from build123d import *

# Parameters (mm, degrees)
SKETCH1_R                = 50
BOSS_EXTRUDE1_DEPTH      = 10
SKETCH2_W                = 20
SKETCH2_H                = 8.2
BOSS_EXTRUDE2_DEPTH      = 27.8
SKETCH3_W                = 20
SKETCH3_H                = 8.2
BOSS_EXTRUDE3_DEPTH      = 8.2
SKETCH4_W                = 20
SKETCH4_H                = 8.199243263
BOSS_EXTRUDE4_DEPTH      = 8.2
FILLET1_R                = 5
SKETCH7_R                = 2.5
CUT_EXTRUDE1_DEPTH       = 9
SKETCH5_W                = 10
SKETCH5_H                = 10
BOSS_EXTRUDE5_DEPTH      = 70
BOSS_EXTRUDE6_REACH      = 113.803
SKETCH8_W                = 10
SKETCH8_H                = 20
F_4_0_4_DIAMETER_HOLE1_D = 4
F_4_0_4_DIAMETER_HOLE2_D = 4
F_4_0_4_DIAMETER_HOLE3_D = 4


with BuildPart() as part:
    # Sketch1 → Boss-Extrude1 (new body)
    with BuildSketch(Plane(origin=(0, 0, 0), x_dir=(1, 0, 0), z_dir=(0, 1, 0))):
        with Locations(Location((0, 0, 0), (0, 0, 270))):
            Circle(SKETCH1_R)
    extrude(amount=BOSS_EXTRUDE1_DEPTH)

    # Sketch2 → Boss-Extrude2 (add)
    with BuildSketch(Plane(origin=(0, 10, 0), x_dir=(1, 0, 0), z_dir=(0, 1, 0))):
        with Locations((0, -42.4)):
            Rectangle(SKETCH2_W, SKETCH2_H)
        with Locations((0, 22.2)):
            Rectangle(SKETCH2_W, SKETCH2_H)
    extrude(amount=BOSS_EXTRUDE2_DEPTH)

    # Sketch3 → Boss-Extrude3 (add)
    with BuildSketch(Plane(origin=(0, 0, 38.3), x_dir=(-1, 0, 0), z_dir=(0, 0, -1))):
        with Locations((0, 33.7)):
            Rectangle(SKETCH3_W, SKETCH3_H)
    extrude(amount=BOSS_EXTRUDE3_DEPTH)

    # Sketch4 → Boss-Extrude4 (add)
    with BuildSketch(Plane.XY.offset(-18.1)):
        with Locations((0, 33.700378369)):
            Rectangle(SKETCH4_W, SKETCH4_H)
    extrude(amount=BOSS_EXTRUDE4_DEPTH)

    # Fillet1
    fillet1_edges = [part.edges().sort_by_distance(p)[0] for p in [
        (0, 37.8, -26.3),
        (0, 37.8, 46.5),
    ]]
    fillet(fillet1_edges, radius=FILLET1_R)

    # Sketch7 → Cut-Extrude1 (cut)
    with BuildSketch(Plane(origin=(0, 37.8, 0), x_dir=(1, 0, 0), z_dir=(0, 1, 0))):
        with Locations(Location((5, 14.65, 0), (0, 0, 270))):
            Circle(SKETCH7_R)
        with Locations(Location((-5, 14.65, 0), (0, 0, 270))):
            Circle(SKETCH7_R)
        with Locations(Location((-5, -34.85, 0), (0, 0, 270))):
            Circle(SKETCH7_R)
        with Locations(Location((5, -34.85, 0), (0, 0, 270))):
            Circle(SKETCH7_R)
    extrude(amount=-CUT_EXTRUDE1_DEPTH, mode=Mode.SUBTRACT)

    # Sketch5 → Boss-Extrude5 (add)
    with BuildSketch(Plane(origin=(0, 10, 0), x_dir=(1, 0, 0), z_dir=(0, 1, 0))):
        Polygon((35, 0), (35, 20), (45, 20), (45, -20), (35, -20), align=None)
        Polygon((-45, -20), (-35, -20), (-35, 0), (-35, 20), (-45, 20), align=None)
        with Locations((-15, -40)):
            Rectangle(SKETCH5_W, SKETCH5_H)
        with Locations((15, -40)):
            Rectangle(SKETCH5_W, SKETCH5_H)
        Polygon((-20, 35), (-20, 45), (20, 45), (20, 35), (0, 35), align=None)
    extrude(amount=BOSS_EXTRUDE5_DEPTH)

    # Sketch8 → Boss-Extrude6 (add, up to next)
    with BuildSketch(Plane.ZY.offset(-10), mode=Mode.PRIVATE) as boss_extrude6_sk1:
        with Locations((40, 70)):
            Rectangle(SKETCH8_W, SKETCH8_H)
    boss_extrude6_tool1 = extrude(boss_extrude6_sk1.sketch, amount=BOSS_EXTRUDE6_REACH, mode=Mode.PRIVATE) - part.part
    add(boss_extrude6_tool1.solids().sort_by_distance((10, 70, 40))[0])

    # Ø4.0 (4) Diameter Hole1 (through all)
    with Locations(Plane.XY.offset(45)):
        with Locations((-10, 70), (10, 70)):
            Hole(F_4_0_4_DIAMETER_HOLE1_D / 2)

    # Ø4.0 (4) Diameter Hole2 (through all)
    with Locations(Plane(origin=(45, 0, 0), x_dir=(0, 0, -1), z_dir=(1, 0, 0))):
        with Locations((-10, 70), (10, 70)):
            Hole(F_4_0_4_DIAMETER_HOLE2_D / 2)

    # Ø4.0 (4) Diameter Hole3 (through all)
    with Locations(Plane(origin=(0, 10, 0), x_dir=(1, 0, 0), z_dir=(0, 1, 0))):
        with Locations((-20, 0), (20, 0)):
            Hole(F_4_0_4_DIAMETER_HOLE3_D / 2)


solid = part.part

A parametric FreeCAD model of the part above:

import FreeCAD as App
import Part
import Sketcher
from FreeCAD import Vector
Q = App.Units.Quantity


def edges_at(feature, points):
    """Names of the edges that pass closest to the given points."""
    edges = feature.Shape.Edges
    near = lambda p: min(range(len(edges)), key=lambda i: edges[i].distToShape(Part.Vertex(*p))[0])
    return sorted({f"Edge{near(p) + 1}" for p in points})

doc = App.newDocument("Part")
params = doc.addObject("Spreadsheet::Sheet", "Params")
for row, (alias, value) in enumerate([
    ("sketch1_diameter", "100 mm"),
    ("pad1_length", "10 mm"),
    ("sketch2_width", "20 mm"),
    ("sketch2_height", "8.2 mm"),
    ("pad2_length", "27.8 mm"),
    ("sketch3_width", "20 mm"),
    ("sketch3_height", "8.2 mm"),
    ("pad3_length", "8.2 mm"),
    ("sketch4_width", "20 mm"),
    ("pad4_length", "8.2 mm"),
    ("fillet_radius", "5 mm"),
    ("sketch5_diameter", "5 mm"),
    ("pocket1_length", "9 mm"),
    ("sketch6_width", "10 mm"),
    ("sketch6_width2", "40 mm"),
    ("pad5_length", "70 mm"),
    ("sketch7_width", "20 mm"),
    ("sketch7_height", "10 mm"),
    ("sketch8_diameter", "4 mm"),
    ("hole_diameter", "4 mm"),
    ("sketch9_diameter", "4 mm"),
    ("hole2_diameter", "4 mm"),
    ("sketch10_diameter", "4 mm"),
    ("hole3_diameter", "4 mm"),
], start=1):
    params.set(f"A{row}", alias)
    params.set(f"B{row}", "=" + value)
    params.setAlias(f"B{row}", alias)

body = doc.addObject("PartDesign::Body", "Body")

# Sketch on XZ plane
sketch1 = body.newObject("Sketcher::SketchObject", "Sketch")
sketch1.AttachmentSupport = (doc.getObject("XZ_Plane"), [""])
sketch1.MapMode = "FlatFace"
sketch1.addGeometry(Part.Circle(Vector(0, 0, 0), Vector(0, 0, 1), 50), False)
sketch1.addConstraint([
    Sketcher.Constraint("Coincident", 0, 3, -1, 1),
    Sketcher.Constraint("Diameter", 0, Q("100 mm")),
])
sketch1.setExpression("Constraints[1]", "Params.sketch1_diameter")
pad1 = body.newObject("PartDesign::Pad", "Pad")
pad1.Profile = sketch1
pad1.setExpression("Length", "Params.pad1_length")
pad1.Reversed = True

# Sketch on XZ plane
sketch2 = body.newObject("Sketcher::SketchObject", "Sketch001")
sketch2.AttachmentSupport = (doc.getObject("XZ_Plane"), [""])
sketch2.MapMode = "FlatFace"
sketch2.AttachmentOffset = App.Placement(Vector(0, 0, -10), App.Rotation())
sketch2.addGeometry([
    Part.LineSegment(Vector(-10, 38, 0), Vector(-10, 46, 0)),  # 0
    Part.LineSegment(Vector(-10, 46, 0), Vector(10, 46, 0)),  # 1
    Part.LineSegment(Vector(10, 46, 0), Vector(10, 38, 0)),  # 2
    Part.LineSegment(Vector(10, 38, 0), Vector(-10, 38, 0)),  # 3
    Part.LineSegment(Vector(-10, -26, 0), Vector(-10, -18, 0)),  # 4
    Part.LineSegment(Vector(-10, -18, 0), Vector(10, -18, 0)),  # 5
    Part.LineSegment(Vector(10, -18, 0), Vector(10, -26, 0)),  # 6
    Part.LineSegment(Vector(10, -26, 0), Vector(-10, -26, 0)),  # 7
], False)
sketch2.addConstraint([
    Sketcher.Constraint("Coincident", 0, 2, 1, 1),
    Sketcher.Constraint("Coincident", 1, 2, 2, 1),
    Sketcher.Constraint("Coincident", 2, 2, 3, 1),
    Sketcher.Constraint("Coincident", 3, 2, 0, 1),
    Sketcher.Constraint("Coincident", 4, 2, 5, 1),
    Sketcher.Constraint("Coincident", 5, 2, 6, 1),
    Sketcher.Constraint("Coincident", 6, 2, 7, 1),
    Sketcher.Constraint("Coincident", 7, 2, 4, 1),
    Sketcher.Constraint("Vertical", 0),
    Sketcher.Constraint("Horizontal", 1),
    Sketcher.Constraint("Vertical", 2),
    Sketcher.Constraint("Horizontal", 3),
    Sketcher.Constraint("Vertical", 4),
    Sketcher.Constraint("Horizontal", 5),
    Sketcher.Constraint("Vertical", 6),
    Sketcher.Constraint("Horizontal", 7),
    Sketcher.Constraint("Vertical", 3, 2, 4, 2),
    Sketcher.Constraint("Vertical", 2, 2, 5, 2),
    Sketcher.Constraint("Equal", 2, 4),
    Sketcher.Constraint("DistanceX", 1, 1, 1, 2, Q("20 mm")),
    Sketcher.Constraint("DistanceY", 0, 1, 0, 2, Q("8.2 mm")),
    Sketcher.Constraint("DistanceX", 0, 2, -1, 1, Q("10 mm")),
    Sketcher.Constraint("DistanceY", -1, 1, 0, 2, Q("46.5 mm")),
    Sketcher.Constraint("DistanceY", 4, 2, -1, 1, Q("18.1 mm")),
])
sketch2.setExpression("Constraints[19]", "Params.sketch2_width")
sketch2.setExpression("Constraints[20]", "Params.sketch2_height")
pad2 = body.newObject("PartDesign::Pad", "Pad001")
pad2.Profile = sketch2
pad2.setExpression("Length", "Params.pad2_length")
pad2.Reversed = True

# Sketch on XY plane
sketch3 = body.newObject("Sketcher::SketchObject", "Sketch002")
sketch3.AttachmentSupport = (doc.getObject("XY_Plane"), [""])
sketch3.MapMode = "FlatFace"
sketch3.AttachmentOffset = App.Placement(Vector(0, 0, 38.3), App.Rotation())
sketch3.addGeometry([
    Part.LineSegment(Vector(10, 38, 0), Vector(10, 30, 0)),
    Part.LineSegment(Vector(10, 30, 0), Vector(-10, 30, 0)),
    Part.LineSegment(Vector(-10, 30, 0), Vector(-10, 38, 0)),
    Part.LineSegment(Vector(-10, 38, 0), Vector(10, 38, 0)),
], False)
sketch3.addConstraint([
    Sketcher.Constraint("Coincident", 0, 2, 1, 1),
    Sketcher.Constraint("Coincident", 1, 2, 2, 1),
    Sketcher.Constraint("Coincident", 2, 2, 3, 1),
    Sketcher.Constraint("Coincident", 3, 2, 0, 1),
    Sketcher.Constraint("Vertical", 0),
    Sketcher.Constraint("Horizontal", 1),
    Sketcher.Constraint("Vertical", 2),
    Sketcher.Constraint("Horizontal", 3),
    Sketcher.Constraint("DistanceX", 1, 2, 1, 1, Q("20 mm")),
    Sketcher.Constraint("DistanceY", 0, 2, 0, 1, Q("8.2 mm")),
    Sketcher.Constraint("DistanceX", -1, 1, 0, 2, Q("10 mm")),
    Sketcher.Constraint("DistanceY", -1, 1, 0, 2, Q("29.6 mm")),
])
sketch3.setExpression("Constraints[8]", "Params.sketch3_width")
sketch3.setExpression("Constraints[9]", "Params.sketch3_height")
pad3 = body.newObject("PartDesign::Pad", "Pad002")
pad3.Profile = sketch3
pad3.setExpression("Length", "Params.pad3_length")
pad3.Reversed = True

# Sketch on XY plane
sketch4 = body.newObject("Sketcher::SketchObject", "Sketch003")
sketch4.AttachmentSupport = (doc.getObject("XY_Plane"), [""])
sketch4.MapMode = "FlatFace"
sketch4.AttachmentOffset = App.Placement(Vector(0, 0, -18.1), App.Rotation())
sketch4.addGeometry([
    Part.LineSegment(Vector(-10, 38, 0), Vector(-10, 30, 0)),
    Part.LineSegment(Vector(-10, 30, 0), Vector(10, 30, 0)),
    Part.LineSegment(Vector(10, 30, 0), Vector(10, 38, 0)),
    Part.LineSegment(Vector(10, 38, 0), Vector(-10, 38, 0)),
], False)
sketch4.addConstraint([
    Sketcher.Constraint("Coincident", 0, 2, 1, 1),
    Sketcher.Constraint("Coincident", 1, 2, 2, 1),
    Sketcher.Constraint("Coincident", 2, 2, 3, 1),
    Sketcher.Constraint("Coincident", 3, 2, 0, 1),
    Sketcher.Constraint("Vertical", 0),
    Sketcher.Constraint("Horizontal", 1),
    Sketcher.Constraint("Vertical", 2),
    Sketcher.Constraint("Horizontal", 3),
    Sketcher.Constraint("DistanceX", 1, 1, 1, 2, Q("20 mm")),
    Sketcher.Constraint("DistanceX", 0, 2, -1, 1, Q("10 mm")),
    Sketcher.Constraint("DistanceY", -1, 1, 2, 2, Q("37.8 mm")),
    Sketcher.Constraint("DistanceY", 0, 2, 0, 1, Q("8.199243 mm")),
])
sketch4.setExpression("Constraints[8]", "Params.sketch4_width")
pad4 = body.newObject("PartDesign::Pad", "Pad003")
pad4.Profile = sketch4
pad4.setExpression("Length", "Params.pad4_length")
doc.recompute()

fillet = body.newObject("PartDesign::Fillet", "Fillet")
fillet.Base = (pad4, edges_at(pad4, [(0, 37.8, -26.3), (0, 37.8, 46.5)]))
fillet.setExpression("Radius", "Params.fillet_radius")

# Sketch on XZ plane
sketch5 = body.newObject("Sketcher::SketchObject", "Sketch004")
sketch5.AttachmentSupport = (doc.getObject("XZ_Plane"), [""])
sketch5.MapMode = "FlatFace"
sketch5.AttachmentOffset = App.Placement(Vector(0, 0, -37.8), App.Rotation())
sketch5.addGeometry([
    Part.Circle(Vector(5, -14.7, 0), Vector(0, 0, 1), 2.5),
    Part.Circle(Vector(-5, -14.7, 0), Vector(0, 0, 1), 2.5),
    Part.Circle(Vector(-5, 34.9, 0), Vector(0, 0, 1), 2.5),
    Part.Circle(Vector(5, 34.9, 0), Vector(0, 0, 1), 2.5),
], False)
sketch5.addConstraint([
    Sketcher.Constraint("Equal", 0, 1),
    Sketcher.Constraint("Equal", 1, 2),
    Sketcher.Constraint("Equal", 2, 3),
    Sketcher.Constraint("Symmetric", 0, 3, 1, 3, -2),
    Sketcher.Constraint("Symmetric", 2, 3, 3, 3, -2),
    Sketcher.Constraint("Vertical", 1, 3, 2, 3),
    Sketcher.Constraint("Diameter", 0, Q("5 mm")),
    Sketcher.Constraint("DistanceX", -1, 1, 0, 3, Q("5 mm")),
    Sketcher.Constraint("DistanceY", 1, 3, 2, 3, Q("49.5 mm")),
    Sketcher.Constraint("DistanceY", 0, 3, -1, 1, Q("14.65 mm")),
])
sketch5.setExpression("Constraints[6]", "Params.sketch5_diameter")
pocket1 = body.newObject("PartDesign::Pocket", "Pocket")
pocket1.Profile = sketch5
pocket1.setExpression("Length", "Params.pocket1_length")
pocket1.Reversed = True

# Sketch on XZ plane
sketch6 = body.newObject("Sketcher::SketchObject", "Sketch005")
sketch6.AttachmentSupport = (doc.getObject("XZ_Plane"), [""])
sketch6.MapMode = "FlatFace"
sketch6.AttachmentOffset = App.Placement(Vector(0, 0, -10), App.Rotation())
sketch6.addGeometry([
    Part.LineSegment(Vector(35, -20, 0), Vector(35, 20, 0)),  # 0
    Part.LineSegment(Vector(35, 20, 0), Vector(45, 20, 0)),  # 1
    Part.LineSegment(Vector(45, 20, 0), Vector(45, -20, 0)),  # 2
    Part.LineSegment(Vector(45, -20, 0), Vector(35, -20, 0)),  # 3
    Part.LineSegment(Vector(-45, 20, 0), Vector(-35, 20, 0)),  # 4
    Part.LineSegment(Vector(-35, 20, 0), Vector(-35, -20, 0)),  # 5
    Part.LineSegment(Vector(-35, -20, 0), Vector(-45, -20, 0)),  # 6
    Part.LineSegment(Vector(-45, -20, 0), Vector(-45, 20, 0)),  # 7
    Part.LineSegment(Vector(-20, 35, 0), Vector(-20, 45, 0)),  # 8
    Part.LineSegment(Vector(-20, 45, 0), Vector(-10, 45, 0)),  # 9
    Part.LineSegment(Vector(-10, 45, 0), Vector(-10, 35, 0)),  # 10
    Part.LineSegment(Vector(-10, 35, 0), Vector(-20, 35, 0)),  # 11
    Part.LineSegment(Vector(10, 35, 0), Vector(10, 45, 0)),  # 12
    Part.LineSegment(Vector(10, 45, 0), Vector(20, 45, 0)),  # 13
    Part.LineSegment(Vector(20, 45, 0), Vector(20, 35, 0)),  # 14
    Part.LineSegment(Vector(20, 35, 0), Vector(10, 35, 0)),  # 15
    Part.LineSegment(Vector(-20, -45, 0), Vector(-20, -35, 0)),  # 16
    Part.LineSegment(Vector(-20, -35, 0), Vector(20, -35, 0)),  # 17
    Part.LineSegment(Vector(20, -35, 0), Vector(20, -45, 0)),  # 18
    Part.LineSegment(Vector(20, -45, 0), Vector(-20, -45, 0)),  # 19
], False)
sketch6.addConstraint([
    Sketcher.Constraint("Coincident", 0, 2, 1, 1),
    Sketcher.Constraint("Coincident", 1, 2, 2, 1),
    Sketcher.Constraint("Coincident", 2, 2, 3, 1),
    Sketcher.Constraint("Coincident", 3, 2, 0, 1),
    Sketcher.Constraint("Coincident", 4, 2, 5, 1),
    Sketcher.Constraint("Coincident", 5, 2, 6, 1),
    Sketcher.Constraint("Coincident", 6, 2, 7, 1),
    Sketcher.Constraint("Coincident", 7, 2, 4, 1),
    Sketcher.Constraint("Coincident", 8, 2, 9, 1),
    Sketcher.Constraint("Coincident", 9, 2, 10, 1),
    Sketcher.Constraint("Coincident", 10, 2, 11, 1),
    Sketcher.Constraint("Coincident", 11, 2, 8, 1),
    Sketcher.Constraint("Coincident", 12, 2, 13, 1),
    Sketcher.Constraint("Coincident", 13, 2, 14, 1),
    Sketcher.Constraint("Coincident", 14, 2, 15, 1),
    Sketcher.Constraint("Coincident", 15, 2, 12, 1),
    Sketcher.Constraint("Coincident", 16, 2, 17, 1),
    Sketcher.Constraint("Coincident", 17, 2, 18, 1),
    Sketcher.Constraint("Coincident", 18, 2, 19, 1),
    Sketcher.Constraint("Coincident", 19, 2, 16, 1),
    Sketcher.Constraint("Vertical", 0),
    Sketcher.Constraint("Horizontal", 1),
    Sketcher.Constraint("Vertical", 2),
    Sketcher.Constraint("Horizontal", 3),
    Sketcher.Constraint("Horizontal", 4),
    Sketcher.Constraint("Vertical", 5),
    Sketcher.Constraint("Horizontal", 6),
    Sketcher.Constraint("Vertical", 7),
    Sketcher.Constraint("Vertical", 8),
    Sketcher.Constraint("Horizontal", 9),
    Sketcher.Constraint("Vertical", 10),
    Sketcher.Constraint("Horizontal", 11),
    Sketcher.Constraint("Vertical", 12),
    Sketcher.Constraint("Horizontal", 13),
    Sketcher.Constraint("Vertical", 14),
    Sketcher.Constraint("Horizontal", 15),
    Sketcher.Constraint("Vertical", 16),
    Sketcher.Constraint("Horizontal", 17),
    Sketcher.Constraint("Vertical", 18),
    Sketcher.Constraint("Horizontal", 19),
    Sketcher.Constraint("Symmetric", 3, 2, 4, 2, -1, 1),
    Sketcher.Constraint("Symmetric", 1, 2, 6, 2, -1, 1),
    Sketcher.Constraint("Symmetric", 14, 2, 16, 2, -1, 1),
    Sketcher.Constraint("Symmetric", 11, 2, 17, 2, -1, 1),
    Sketcher.Constraint("Symmetric", 9, 2, 12, 2, -2),
    Sketcher.Constraint("Symmetric", 13, 2, 18, 2, -1),
    Sketcher.Constraint("Horizontal", 1, 2, 4, 2),
    Sketcher.Constraint("Equal", 6, 9),
    Sketcher.Constraint("Equal", 19, 0),
    Sketcher.Constraint("Equal", 15, 8),
    Sketcher.Constraint("DistanceX", 1, 1, 1, 2, Q("10 mm")),
    Sketcher.Constraint("DistanceX", 17, 1, 17, 2, Q("40 mm")),
    Sketcher.Constraint("DistanceX", -1, 1, 0, 2, Q("35 mm")),
    Sketcher.Constraint("DistanceY", -1, 1, 8, 2, Q("45 mm")),
])
sketch6.setExpression("Constraints[50]", "Params.sketch6_width")
sketch6.setExpression("Constraints[51]", "Params.sketch6_width2")
pad5 = body.newObject("PartDesign::Pad", "Pad004")
pad5.Profile = sketch6
pad5.setExpression("Length", "Params.pad5_length")
pad5.Reversed = True

# Sketch on YZ plane
sketch7 = body.newObject("Sketcher::SketchObject", "Sketch006")
sketch7.AttachmentSupport = (doc.getObject("YZ_Plane"), [""])
sketch7.MapMode = "FlatFace"
sketch7.AttachmentOffset = App.Placement(Vector(0, 0, 10), App.Rotation())
sketch7.addGeometry([
    Part.LineSegment(Vector(80, 35, 0), Vector(60, 35, 0)),
    Part.LineSegment(Vector(60, 35, 0), Vector(60, 45, 0)),
    Part.LineSegment(Vector(60, 45, 0), Vector(80, 45, 0)),
    Part.LineSegment(Vector(80, 45, 0), Vector(80, 35, 0)),
], False)
sketch7.addConstraint([
    Sketcher.Constraint("Coincident", 0, 2, 1, 1),
    Sketcher.Constraint("Coincident", 1, 2, 2, 1),
    Sketcher.Constraint("Coincident", 2, 2, 3, 1),
    Sketcher.Constraint("Coincident", 3, 2, 0, 1),
    Sketcher.Constraint("Horizontal", 0),
    Sketcher.Constraint("Vertical", 1),
    Sketcher.Constraint("Horizontal", 2),
    Sketcher.Constraint("Vertical", 3),
    Sketcher.Constraint("DistanceX", 0, 2, 0, 1, Q("20 mm")),
    Sketcher.Constraint("DistanceY", 1, 1, 1, 2, Q("10 mm")),
    Sketcher.Constraint("DistanceX", -1, 1, 0, 2, Q("60 mm")),
    Sketcher.Constraint("DistanceY", -1, 1, 0, 2, Q("35 mm")),
])
sketch7.setExpression("Constraints[8]", "Params.sketch7_width")
sketch7.setExpression("Constraints[9]", "Params.sketch7_height")
pad6 = body.newObject("PartDesign::Pad", "Pad005")
pad6.Profile = sketch7
pad6.Type = "UpToFirst"
pad6.Reversed = True

# Sketch on XY plane
sketch8 = body.newObject("Sketcher::SketchObject", "Sketch007")
sketch8.AttachmentSupport = (doc.getObject("XY_Plane"), [""])
sketch8.MapMode = "FlatFace"
sketch8.AttachmentOffset = App.Placement(Vector(0, 0, 45), App.Rotation())
sketch8.addGeometry([
    Part.Circle(Vector(-10, 70, 0), Vector(0, 0, 1), 2),
    Part.Circle(Vector(10, 70, 0), Vector(0, 0, 1), 2),
], False)
sketch8.addConstraint([
    Sketcher.Constraint("Equal", 0, 1),
    Sketcher.Constraint("Symmetric", 0, 3, 1, 3, -2),
    Sketcher.Constraint("Diameter", 0, Q("4 mm")),
    Sketcher.Constraint("DistanceX", 0, 3, -1, 1, Q("10 mm")),
    Sketcher.Constraint("DistanceY", -1, 1, 0, 3, Q("70 mm")),
])
sketch8.setExpression("Constraints[2]", "Params.sketch8_diameter")
doc.recompute()
hole = body.newObject("PartDesign::Hole", "Hole")
hole.Profile = sketch8
hole.ThreadType = "None"
hole.setExpression("Diameter", "Params.hole_diameter")
hole.DepthType = "ThroughAll"

# Sketch on YZ plane
sketch9 = body.newObject("Sketcher::SketchObject", "Sketch008")
sketch9.AttachmentSupport = (doc.getObject("YZ_Plane"), [""])
sketch9.MapMode = "FlatFace"
sketch9.AttachmentOffset = App.Placement(Vector(0, 0, 45), App.Rotation())
sketch9.addGeometry([
    Part.Circle(Vector(70, 10, 0), Vector(0, 0, 1), 2),
    Part.Circle(Vector(70, -10, 0), Vector(0, 0, 1), 2),
], False)
sketch9.addConstraint([
    Sketcher.Constraint("Equal", 0, 1),
    Sketcher.Constraint("Symmetric", 0, 3, 1, 3, -1),
    Sketcher.Constraint("Diameter", 0, Q("4 mm")),
    Sketcher.Constraint("DistanceX", -1, 1, 0, 3, Q("70 mm")),
    Sketcher.Constraint("DistanceY", -1, 1, 0, 3, Q("10 mm")),
])
sketch9.setExpression("Constraints[2]", "Params.sketch9_diameter")
doc.recompute()
hole2 = body.newObject("PartDesign::Hole", "Hole001")
hole2.Profile = sketch9
hole2.ThreadType = "None"
hole2.setExpression("Diameter", "Params.hole2_diameter")
hole2.DepthType = "ThroughAll"

# Sketch on XZ plane
sketch10 = body.newObject("Sketcher::SketchObject", "Sketch009")
sketch10.AttachmentSupport = (doc.getObject("XZ_Plane"), [""])
sketch10.MapMode = "FlatFace"
sketch10.AttachmentOffset = App.Placement(Vector(0, 0, -10), App.Rotation())
sketch10.addGeometry([
    Part.Circle(Vector(-20, 0, 0), Vector(0, 0, 1), 2),
    Part.Circle(Vector(20, 0, 0), Vector(0, 0, 1), 2),
], False)
sketch10.addConstraint([
    Sketcher.Constraint("Equal", 0, 1),
    Sketcher.Constraint("Symmetric", 0, 3, 1, 3, -1, 1),
    Sketcher.Constraint("PointOnObject", 0, 3, -1),
    Sketcher.Constraint("Diameter", 0, Q("4 mm")),
    Sketcher.Constraint("DistanceX", 0, 3, -1, 1, Q("20 mm")),
])
sketch10.setExpression("Constraints[3]", "Params.sketch10_diameter")
doc.recompute()
hole3 = body.newObject("PartDesign::Hole", "Hole002")
hole3.Profile = sketch10
hole3.ThreadType = "None"
hole3.setExpression("Diameter", "Params.hole3_diameter")
hole3.DepthType = "ThroughAll"
hole3.Reversed = True

doc.recompute()
